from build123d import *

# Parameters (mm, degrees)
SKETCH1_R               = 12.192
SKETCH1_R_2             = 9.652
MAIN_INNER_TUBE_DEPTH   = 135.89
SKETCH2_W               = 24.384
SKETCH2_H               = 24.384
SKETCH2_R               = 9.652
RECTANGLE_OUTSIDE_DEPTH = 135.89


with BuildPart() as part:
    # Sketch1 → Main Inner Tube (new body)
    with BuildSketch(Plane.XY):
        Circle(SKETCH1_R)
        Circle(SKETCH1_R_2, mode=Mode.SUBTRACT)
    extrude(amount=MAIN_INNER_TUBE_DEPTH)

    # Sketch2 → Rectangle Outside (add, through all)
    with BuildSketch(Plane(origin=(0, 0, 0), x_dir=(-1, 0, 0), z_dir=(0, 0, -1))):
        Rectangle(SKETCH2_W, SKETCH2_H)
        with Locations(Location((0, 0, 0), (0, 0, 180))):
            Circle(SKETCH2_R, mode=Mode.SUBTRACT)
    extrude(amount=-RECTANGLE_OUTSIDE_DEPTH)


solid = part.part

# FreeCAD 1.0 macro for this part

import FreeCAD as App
import Part
import Sketcher
from FreeCAD import Vector
Q = App.Units.Quantity

doc = App.newDocument("Part")
params = doc.addObject("Spreadsheet::Sheet", "Params")
for row, (alias, value) in enumerate([
    ("sketch1_diameter", "0.96 in"),
    ("sketch1_diameter2", "0.76 in"),
    ("pad1_length", "5.35 in"),
    ("sketch2_diameter", "0.76 in"),
    ("sketch2_width", "0.96 in"),
    ("pad2_length", "5.35 in"),
], start=1):
    params.set(f"A{row}", alias)
    params.set(f"B{row}", "=" + value)
    params.setAlias(f"B{row}", alias)

body = doc.addObject("PartDesign::Body", "Body")

# Sketch on XY plane
sketch1 = body.newObject("Sketcher::SketchObject", "Sketch")
sketch1.AttachmentSupport = (doc.getObject("XY_Plane"), [""])
sketch1.MapMode = "FlatFace"
sketch1.addGeometry([
    Part.Circle(Vector(0, 0, 0), Vector(0, 0, 1), 12),
    Part.Circle(Vector(0, 0, 0), Vector(0, 0, 1), 10),
], False)
sketch1.addConstraint([
    Sketcher.Constraint("Coincident", 0, 3, -1, 1),
    Sketcher.Constraint("Coincident", 1, 3, -1, 1),
    Sketcher.Constraint("Diameter", 0, Q("0.96 in")),
    Sketcher.Constraint("Diameter", 1, Q("0.76 in")),
])
sketch1.setExpression("Constraints[2]", "Params.sketch1_diameter")
sketch1.setExpression("Constraints[3]", "Params.sketch1_diameter2")
pad1 = body.newObject("PartDesign::Pad", "Pad")
pad1.Profile = sketch1
pad1.setExpression("Length", "Params.pad1_length")

# Sketch on XY plane
sketch2 = body.newObject("Sketcher::SketchObject", "Sketch001")
sketch2.AttachmentSupport = (doc.getObject("XY_Plane"), [""])
sketch2.MapMode = "FlatFace"
sketch2.addGeometry([
    Part.LineSegment(Vector(12, 12, 0), Vector(12, -12, 0)),  # 0
    Part.LineSegment(Vector(12, -12, 0), Vector(-12, -12, 0)),  # 1
    Part.LineSegment(Vector(-12, -12, 0), Vector(-12, 12, 0)),  # 2
    Part.LineSegment(Vector(-12, 12, 0), Vector(12, 12, 0)),  # 3
    Part.Circle(Vector(0, 0, 0), Vector(0, 0, 1), 10),  # 4
], False)
sketch2.addConstraint([
    Sketcher.Constraint("Coincident", 0, 2, 1, 1),
    Sketcher.Constraint("Coincident", 1, 2, 2, 1),
    Sketcher.Constraint("Coincident", 2, 2, 3, 1),
    Sketcher.Constraint("Coincident", 3, 2, 0, 1),
    Sketcher.Constraint("Vertical", 0),
    Sketcher.Constraint("Horizontal", 1),
    Sketcher.Constraint("Vertical", 2),
    Sketcher.Constraint("Horizontal", 3),
    Sketcher.Constraint("Coincident", 4, 3, -1, 1),
    Sketcher.Constraint("Symmetric", 0, 2, 2, 2, -1, 1),
    Sketcher.Constraint("Equal", 3, 0),
    Sketcher.Constraint("Diameter", 4, Q("0.76 in")),
    Sketcher.Constraint("DistanceX", 1, 2, 1, 1, Q("0.96 in")),
])
sketch2.setExpression("Constraints[11]", "Params.sketch2_diameter")
sketch2.setExpression("Constraints[12]", "Params.sketch2_width")
pad2 = body.newObject("PartDesign::Pad", "Pad001")
pad2.Profile = sketch2
pad2.setExpression("Length", "Params.pad2_length")

doc.recompute()
